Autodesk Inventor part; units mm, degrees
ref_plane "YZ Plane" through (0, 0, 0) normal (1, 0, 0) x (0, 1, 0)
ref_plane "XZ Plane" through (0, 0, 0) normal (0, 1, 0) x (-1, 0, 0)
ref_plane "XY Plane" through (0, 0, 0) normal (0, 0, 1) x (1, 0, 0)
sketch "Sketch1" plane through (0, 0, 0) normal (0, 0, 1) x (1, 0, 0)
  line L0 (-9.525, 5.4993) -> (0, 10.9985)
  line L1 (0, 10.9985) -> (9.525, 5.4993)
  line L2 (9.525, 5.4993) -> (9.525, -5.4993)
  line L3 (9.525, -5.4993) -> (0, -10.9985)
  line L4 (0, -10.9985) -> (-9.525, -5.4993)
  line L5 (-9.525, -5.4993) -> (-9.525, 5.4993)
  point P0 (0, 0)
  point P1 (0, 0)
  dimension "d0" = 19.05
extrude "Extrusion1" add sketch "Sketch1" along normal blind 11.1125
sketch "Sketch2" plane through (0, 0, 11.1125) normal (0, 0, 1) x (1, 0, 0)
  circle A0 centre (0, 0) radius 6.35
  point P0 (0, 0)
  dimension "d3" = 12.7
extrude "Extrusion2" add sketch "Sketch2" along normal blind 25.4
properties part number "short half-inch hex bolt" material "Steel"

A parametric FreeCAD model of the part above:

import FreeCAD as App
import Part
import Sketcher
Q = App.Units.Quantity


def add_polygon(sketch, points):
    """Adds a closed chain of lines whose ends are joined by coincident constraints."""
    first, n = sketch.GeometryCount, len(points)
    for a, b in zip(points, points[1:] + points[:1]):
        sketch.addGeometry(Part.LineSegment(App.Vector(*a, 0), App.Vector(*b, 0)), False)
    for i in range(n):
        sketch.addConstraint(Sketcher.Constraint("Coincident", first + i, 2, first + (i + 1) % n, 1))

doc = App.newDocument("Part")
body = doc.addObject("PartDesign::Body", "Body")

# Sketch on XY plane
sketch1 = body.newObject("Sketcher::SketchObject", "Sketch")
sketch1.AttachmentSupport = (doc.getObject("XY_Plane"), [""])
sketch1.MapMode = "FlatFace"
add_polygon(sketch1, [(0, 10.9985), (-9.525, 5.4993), (-9.525, -5.4993), (0, -10.9985), (9.525, -5.4993), (9.525, 5.4993)])  # lines 0-5
sketch1.addConstraint([
    Sketcher.Constraint("Vertical", 1),
    Sketcher.Constraint("Vertical", 4),
    Sketcher.Constraint("Symmetric", 0, 2, 3, 2, -1, 1),
    Sketcher.Constraint("Symmetric", 2, 2, 5, 2, -1, 1),
    Sketcher.Constraint("PointOnObject", 2, 2, -2),
    Sketcher.Constraint("Parallel", 2, 5),
    Sketcher.Constraint("Horizontal", 1, 2, 3, 2),
    Sketcher.Constraint("DistanceX", 1, 2, 3, 2, Q("0.75 in")),
    Sketcher.Constraint("Angle", 0, Q("-150.0003 deg")),
    Sketcher.Constraint("DistanceY", 2, 2, -1, 1, Q("0.433 in")),
])
pad1 = body.newObject("PartDesign::Pad", "Pad")
pad1.Profile = sketch1
pad1.Length = Q("0.4375 in")

# Sketch on XY plane
sketch2 = body.newObject("Sketcher::SketchObject", "Sketch001")
sketch2.AttachmentSupport = (doc.getObject("XY_Plane"), [""])
sketch2.MapMode = "FlatFace"
sketch2.AttachmentOffset = App.Placement(App.Vector(0, 0, 0.4375 * 25.4), App.Rotation())
sketch2.addGeometry(Part.Circle(App.Vector(0, 0, 0), App.Vector(0, 0, 1), 6.35), False)
sketch2.addConstraint([
    Sketcher.Constraint("Coincident", 0, 3, -1, 1),
    Sketcher.Constraint("Diameter", 0, Q("0.5 in")),
])
pad2 = body.newObject("PartDesign::Pad", "Pad001")
pad2.Profile = sketch2
pad2.Length = Q("1 in")

doc.recompute()
